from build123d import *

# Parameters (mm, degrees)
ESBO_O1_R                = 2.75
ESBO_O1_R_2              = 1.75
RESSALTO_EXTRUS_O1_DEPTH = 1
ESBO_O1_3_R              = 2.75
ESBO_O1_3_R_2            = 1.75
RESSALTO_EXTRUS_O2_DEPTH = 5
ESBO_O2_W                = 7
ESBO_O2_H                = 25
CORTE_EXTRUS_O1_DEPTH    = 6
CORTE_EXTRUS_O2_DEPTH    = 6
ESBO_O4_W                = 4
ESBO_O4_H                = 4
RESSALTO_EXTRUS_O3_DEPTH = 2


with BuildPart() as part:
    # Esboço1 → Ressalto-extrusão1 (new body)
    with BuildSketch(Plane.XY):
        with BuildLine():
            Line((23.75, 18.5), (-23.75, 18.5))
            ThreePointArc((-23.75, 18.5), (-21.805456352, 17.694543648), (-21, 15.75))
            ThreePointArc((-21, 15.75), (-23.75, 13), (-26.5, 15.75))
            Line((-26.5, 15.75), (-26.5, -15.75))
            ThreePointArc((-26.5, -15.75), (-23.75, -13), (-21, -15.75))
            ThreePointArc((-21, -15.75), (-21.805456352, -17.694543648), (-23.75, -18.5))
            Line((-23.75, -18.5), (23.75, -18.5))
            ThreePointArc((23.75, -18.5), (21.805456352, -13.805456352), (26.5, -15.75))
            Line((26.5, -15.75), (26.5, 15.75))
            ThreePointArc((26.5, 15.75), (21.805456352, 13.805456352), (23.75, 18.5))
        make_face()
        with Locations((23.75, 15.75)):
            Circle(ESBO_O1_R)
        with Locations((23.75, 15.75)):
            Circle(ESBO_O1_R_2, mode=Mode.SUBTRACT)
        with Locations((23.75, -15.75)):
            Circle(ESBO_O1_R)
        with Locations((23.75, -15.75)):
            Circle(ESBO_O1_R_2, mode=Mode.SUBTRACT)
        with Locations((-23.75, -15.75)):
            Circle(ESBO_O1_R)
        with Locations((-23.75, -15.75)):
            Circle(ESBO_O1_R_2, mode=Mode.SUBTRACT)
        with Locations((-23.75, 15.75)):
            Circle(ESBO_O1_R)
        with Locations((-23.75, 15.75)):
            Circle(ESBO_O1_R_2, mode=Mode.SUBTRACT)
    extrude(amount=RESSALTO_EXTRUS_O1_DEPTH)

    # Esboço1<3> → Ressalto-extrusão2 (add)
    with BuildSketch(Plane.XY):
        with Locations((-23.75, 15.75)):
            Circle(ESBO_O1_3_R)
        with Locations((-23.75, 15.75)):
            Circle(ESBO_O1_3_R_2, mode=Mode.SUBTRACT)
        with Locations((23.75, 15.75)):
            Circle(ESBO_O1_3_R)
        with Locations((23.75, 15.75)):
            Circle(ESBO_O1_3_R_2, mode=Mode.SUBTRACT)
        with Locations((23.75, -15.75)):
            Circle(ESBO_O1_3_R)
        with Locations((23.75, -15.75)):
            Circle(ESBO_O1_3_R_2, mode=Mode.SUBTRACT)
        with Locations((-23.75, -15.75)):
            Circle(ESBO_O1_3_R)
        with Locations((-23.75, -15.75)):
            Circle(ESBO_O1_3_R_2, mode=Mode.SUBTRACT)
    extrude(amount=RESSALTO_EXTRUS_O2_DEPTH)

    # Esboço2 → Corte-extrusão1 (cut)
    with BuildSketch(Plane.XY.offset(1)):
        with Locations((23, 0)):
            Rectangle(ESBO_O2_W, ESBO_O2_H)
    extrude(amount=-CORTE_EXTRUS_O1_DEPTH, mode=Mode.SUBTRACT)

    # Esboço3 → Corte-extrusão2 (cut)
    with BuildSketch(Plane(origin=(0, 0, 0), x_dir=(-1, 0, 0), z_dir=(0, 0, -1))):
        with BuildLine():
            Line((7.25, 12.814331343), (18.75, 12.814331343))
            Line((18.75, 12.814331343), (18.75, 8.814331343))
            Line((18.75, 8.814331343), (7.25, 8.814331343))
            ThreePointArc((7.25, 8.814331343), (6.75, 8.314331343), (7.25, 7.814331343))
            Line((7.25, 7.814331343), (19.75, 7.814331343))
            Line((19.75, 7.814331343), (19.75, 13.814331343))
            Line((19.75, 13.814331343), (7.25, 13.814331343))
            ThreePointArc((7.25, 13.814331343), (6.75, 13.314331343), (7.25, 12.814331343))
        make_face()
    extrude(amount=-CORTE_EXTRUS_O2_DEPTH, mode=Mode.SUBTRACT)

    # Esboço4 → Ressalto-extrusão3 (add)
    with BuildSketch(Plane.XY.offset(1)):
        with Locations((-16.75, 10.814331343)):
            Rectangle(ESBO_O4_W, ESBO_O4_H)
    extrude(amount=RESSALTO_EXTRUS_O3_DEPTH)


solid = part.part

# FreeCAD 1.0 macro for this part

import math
import FreeCAD as App
import Part
import Sketcher
from FreeCAD import Vector

doc = App.newDocument("Part")
body = doc.addObject("PartDesign::Body", "Body")

# Sketch on XY plane
sketch1 = body.newObject("Sketcher::SketchObject", "Sketch")
sketch1.AttachmentSupport = (doc.getObject("XY_Plane"), [""])
sketch1.MapMode = "FlatFace"
sketch1.addGeometry([
    Part.LineSegment(Vector(23.8, 18.5, 0), Vector(-23.8, 18.5, 0)),  # 0
    Part.ArcOfCircle(Part.Circle(Vector(-23.8, 15.8, 0), Vector(0, 0, 1), 2.8), math.radians(90), math.radians(180)),  # 1
    Part.LineSegment(Vector(-26.5, 15.8, 0), Vector(-26.5, -15.8, 0)),  # 2
    Part.ArcOfCircle(Part.Circle(Vector(-23.8, -15.8, 0), Vector(0, 0, 1), 2.8), math.radians(180), math.radians(270)),  # 3
    Part.LineSegment(Vector(-23.8, -18.5, 0), Vector(23.8, -18.5, 0)),  # 4
    Part.ArcOfCircle(Part.Circle(Vector(23.8, -15.8, 0), Vector(0, 0, 1), 2.8), math.radians(-90), math.radians(0)),  # 5
    Part.LineSegment(Vector(26.5, -15.8, 0), Vector(26.5, 15.8, 0)),  # 6
    Part.ArcOfCircle(Part.Circle(Vector(23.8, 15.8, 0), Vector(0, 0, 1), 2.8), math.radians(0), math.radians(90)),  # 7
    Part.Circle(Vector(-23.8, -15.8, 0), Vector(0, 0, 1), 1.8),  # 8
    Part.Circle(Vector(23.8, -15.8, 0), Vector(0, 0, 1), 1.8),  # 9
    Part.Circle(Vector(-23.8, 15.8, 0), Vector(0, 0, 1), 1.8),  # 10
    Part.Circle(Vector(23.8, 15.8, 0), Vector(0, 0, 1), 1.8),  # 11
], False)
sketch1.addConstraint([
    Sketcher.Constraint("Tangent", 0, 2, 1, 1),
    Sketcher.Constraint("Tangent", 1, 2, 2, 1),
    Sketcher.Constraint("Tangent", 2, 2, 3, 1),
    Sketcher.Constraint("Tangent", 3, 2, 4, 1),
    Sketcher.Constraint("Tangent", 4, 2, 5, 1),
    Sketcher.Constraint("Tangent", 5, 2, 6, 1),
    Sketcher.Constraint("Tangent", 6, 2, 7, 1),
    Sketcher.Constraint("Tangent", 7, 2, 0, 1),
    Sketcher.Constraint("Horizontal", 0),
    Sketcher.Constraint("Vertical", 2),
    Sketcher.Constraint("Horizontal", 4),
    Sketcher.Constraint("Vertical", 6),
    Sketcher.Constraint("Coincident", 8, 3, 3, 3),
    Sketcher.Constraint("Coincident", 9, 3, 5, 3),
    Sketcher.Constraint("Coincident", 10, 3, 1, 3),
    Sketcher.Constraint("Coincident", 11, 3, 7, 3),
    Sketcher.Constraint("Equal", 1, 3),
    Sketcher.Constraint("Equal", 3, 5),
    Sketcher.Constraint("Equal", 5, 7),
    Sketcher.Constraint("Equal", 8, 9),
    Sketcher.Constraint("Equal", 9, 10),
    Sketcher.Constraint("Equal", 10, 11),
    Sketcher.Constraint("Symmetric", 1, 3, 5, 3, -1, 1),
    Sketcher.Constraint("Diameter", 8, 3.5),
    Sketcher.Constraint("Radius", 1, 2.75),
    Sketcher.Constraint("DistanceX", 0, 2, 0, 1, 47.5),
    Sketcher.Constraint("DistanceY", 2, 2, 2, 1, 31.5),
])
pad1 = body.newObject("PartDesign::Pad", "Pad")
pad1.Profile = sketch1
pad1.Length = 1

# Sketch on XY plane
sketch2 = body.newObject("Sketcher::SketchObject", "Sketch001")
sketch2.AttachmentSupport = (doc.getObject("XY_Plane"), [""])
sketch2.MapMode = "FlatFace"
sketch2.addGeometry([
    Part.Circle(Vector(-23.8, 15.8, 0), Vector(0, 0, 1), 2.8),  # 0
    Part.Circle(Vector(-23.8, 15.8, 0), Vector(0, 0, 1), 1.8),  # 1
    Part.Circle(Vector(23.8, 15.8, 0), Vector(0, 0, 1), 2.8),  # 2
    Part.Circle(Vector(23.8, 15.8, 0), Vector(0, 0, 1), 1.8),  # 3
    Part.Circle(Vector(23.8, -15.8, 0), Vector(0, 0, 1), 2.8),  # 4
    Part.Circle(Vector(23.8, -15.8, 0), Vector(0, 0, 1), 1.8),  # 5
    Part.Circle(Vector(-23.8, -15.8, 0), Vector(0, 0, 1), 2.8),  # 6
    Part.Circle(Vector(-23.8, -15.8, 0), Vector(0, 0, 1), 1.8),  # 7
], False)
sketch2.addConstraint([
    Sketcher.Constraint("Coincident", 1, 3, 0, 3),
    Sketcher.Constraint("Coincident", 3, 3, 2, 3),
    Sketcher.Constraint("Coincident", 5, 3, 4, 3),
    Sketcher.Constraint("Coincident", 7, 3, 6, 3),
    Sketcher.Constraint("Equal", 0, 2),
    Sketcher.Constraint("Equal", 1, 3),
    Sketcher.Constraint("Equal", 2, 4),
    Sketcher.Constraint("Equal", 3, 5),
    Sketcher.Constraint("Equal", 4, 6),
    Sketcher.Constraint("Equal", 5, 7),
    Sketcher.Constraint("Symmetric", 0, 3, 4, 3, -1, 1),
    Sketcher.Constraint("Symmetric", 2, 3, 6, 3, -1, 1),
    Sketcher.Constraint("Symmetric", 0, 3, 2, 3, -2),
    Sketcher.Constraint("Diameter", 0, 5.5),
    Sketcher.Constraint("Diameter", 1, 3.5),
    Sketcher.Constraint("DistanceX", 0, 3, 2, 3, 47.5),
    Sketcher.Constraint("DistanceY", 4, 3, 2, 3, 31.5),
])
pad2 = body.newObject("PartDesign::Pad", "Pad001")
pad2.Profile = sketch2
pad2.Length = 5

# Sketch on XY plane
sketch3 = body.newObject("Sketcher::SketchObject", "Sketch002")
sketch3.AttachmentSupport = (doc.getObject("XY_Plane"), [""])
sketch3.MapMode = "FlatFace"
sketch3.AttachmentOffset = App.Placement(Vector(0, 0, 1), App.Rotation())
sketch3.addGeometry([
    Part.LineSegment(Vector(20, 12, 0), Vector(20, -12, 0)),
    Part.LineSegment(Vector(20, -12, 0), Vector(26, -12, 0)),
    Part.LineSegment(Vector(26, -12, 0), Vector(26, 12, 0)),
    Part.LineSegment(Vector(26, 12, 0), Vector(20, 12, 0)),
], False)
sketch3.addConstraint([
    Sketcher.Constraint("Coincident", 0, 2, 1, 1),
    Sketcher.Constraint("Coincident", 1, 2, 2, 1),
    Sketcher.Constraint("Coincident", 2, 2, 3, 1),
    Sketcher.Constraint("Coincident", 3, 2, 0, 1),
    Sketcher.Constraint("Vertical", 0),
    Sketcher.Constraint("Horizontal", 1),
    Sketcher.Constraint("Vertical", 2),
    Sketcher.Constraint("Horizontal", 3),
    Sketcher.Constraint("DistanceX", 1, 1, 1, 2, 7.0),
    Sketcher.Constraint("DistanceY", 0, 2, 0, 1, 25.0),
    Sketcher.Constraint("DistanceX", -1, 1, 0, 2, 19.5),
    Sketcher.Constraint("DistanceY", 0, 2, -1, 1, 12.5),
])
pocket1 = body.newObject("PartDesign::Pocket", "Pocket")
pocket1.Profile = sketch3
pocket1.Length = 6

# Sketch on XY plane
sketch4 = body.newObject("Sketcher::SketchObject", "Sketch003")
sketch4.AttachmentSupport = (doc.getObject("XY_Plane"), [""])
sketch4.MapMode = "FlatFace"
sketch4.addGeometry([
    Part.LineSegment(Vector(-7.2, 12.8, 0), Vector(-18.8, 12.8, 0)),  # 0
    Part.LineSegment(Vector(-18.8, 12.8, 0), Vector(-18.8, 8.8, 0)),  # 1
    Part.LineSegment(Vector(-18.8, 8.8, 0), Vector(-7.2, 8.8, 0)),  # 2
    Part.ArcOfCircle(Part.Circle(Vector(-7.2, 8.3, 0), Vector(0, 0, 1), 0.5), math.radians(-90), math.radians(90)),  # 3
    Part.LineSegment(Vector(-7.2, 7.8, 0), Vector(-19.8, 7.8, 0)),  # 4
    Part.LineSegment(Vector(-19.8, 7.8, 0), Vector(-19.8, 13.8, 0)),  # 5
    Part.LineSegment(Vector(-19.8, 13.8, 0), Vector(-7.2, 13.8, 0)),  # 6
    Part.ArcOfCircle(Part.Circle(Vector(-7.2, 13.3, 0), Vector(0, 0, 1), 0.5), math.radians(-90), math.radians(90)),  # 7
], False)
sketch4.addConstraint([
    Sketcher.Constraint("Coincident", 0, 2, 1, 1),
    Sketcher.Constraint("Coincident", 1, 2, 2, 1),
    Sketcher.Constraint("Tangent", 2, 2, 3, 2),
    Sketcher.Constraint("Tangent", 3, 1, 4, 1),
    Sketcher.Constraint("Coincident", 4, 2, 5, 1),
    Sketcher.Constraint("Coincident", 5, 2, 6, 1),
    Sketcher.Constraint("Tangent", 6, 2, 7, 2),
    Sketcher.Constraint("Tangent", 7, 1, 0, 1),
    Sketcher.Constraint("Horizontal", 0),
    Sketcher.Constraint("Vertical", 1),
    Sketcher.Constraint("Horizontal", 2),
    Sketcher.Constraint("Horizontal", 4),
    Sketcher.Constraint("Vertical", 5),
    Sketcher.Constraint("Horizontal", 6),
    Sketcher.Constraint("Equal", 3, 7),
    Sketcher.Constraint("Vertical", 3, 3, 7, 3),
    Sketcher.Constraint("Radius", 3, 0.5),
    Sketcher.Constraint("DistanceY", 1, 2, 1, 1, 4.0),
    Sketcher.Constraint("DistanceX", 0, 2, 0, 1, 11.5),
    Sketcher.Constraint("DistanceX", 4, 2, 4, 1, 12.5),
    Sketcher.Constraint("DistanceX", 3, 3, -1, 1, 7.25),
    Sketcher.Constraint("DistanceY", -1, 1, 3, 3, 8.314331),
])
pocket2 = body.newObject("PartDesign::Pocket", "Pocket001")
pocket2.Profile = sketch4
pocket2.Length = 6
pocket2.Reversed = True

# Sketch on XY plane
sketch5 = body.newObject("Sketcher::SketchObject", "Sketch004")
sketch5.AttachmentSupport = (doc.getObject("XY_Plane"), [""])
sketch5.MapMode = "FlatFace"
sketch5.AttachmentOffset = App.Placement(Vector(0, 0, 1), App.Rotation())
sketch5.addGeometry([
    Part.LineSegment(Vector(-18.8, 12.8, 0), Vector(-18.8, 8.8, 0)),
    Part.LineSegment(Vector(-18.8, 8.8, 0), Vector(-14.8, 8.8, 0)),
    Part.LineSegment(Vector(-14.8, 8.8, 0), Vector(-14.8, 12.8, 0)),
    Part.LineSegment(Vector(-14.8, 12.8, 0), Vector(-18.8, 12.8, 0)),
], False)
sketch5.addConstraint([
    Sketcher.Constraint("Coincident", 0, 2, 1, 1),
    Sketcher.Constraint("Coincident", 1, 2, 2, 1),
    Sketcher.Constraint("Coincident", 2, 2, 3, 1),
    Sketcher.Constraint("Coincident", 3, 2, 0, 1),
    Sketcher.Constraint("Vertical", 0),
    Sketcher.Constraint("Horizontal", 1),
    Sketcher.Constraint("Vertical", 2),
    Sketcher.Constraint("Horizontal", 3),
    Sketcher.Constraint("Equal", 3, 0),
    Sketcher.Constraint("DistanceX", 1, 1, 1, 2, 4.0),
    Sketcher.Constraint("DistanceX", 0, 2, -1, 1, 18.75),
    Sketcher.Constraint("DistanceY", -1, 1, 0, 2, 8.814331),
])
pad3 = body.newObject("PartDesign::Pad", "Pad002")
pad3.Profile = sketch5
pad3.Length = 2

doc.recompute()
